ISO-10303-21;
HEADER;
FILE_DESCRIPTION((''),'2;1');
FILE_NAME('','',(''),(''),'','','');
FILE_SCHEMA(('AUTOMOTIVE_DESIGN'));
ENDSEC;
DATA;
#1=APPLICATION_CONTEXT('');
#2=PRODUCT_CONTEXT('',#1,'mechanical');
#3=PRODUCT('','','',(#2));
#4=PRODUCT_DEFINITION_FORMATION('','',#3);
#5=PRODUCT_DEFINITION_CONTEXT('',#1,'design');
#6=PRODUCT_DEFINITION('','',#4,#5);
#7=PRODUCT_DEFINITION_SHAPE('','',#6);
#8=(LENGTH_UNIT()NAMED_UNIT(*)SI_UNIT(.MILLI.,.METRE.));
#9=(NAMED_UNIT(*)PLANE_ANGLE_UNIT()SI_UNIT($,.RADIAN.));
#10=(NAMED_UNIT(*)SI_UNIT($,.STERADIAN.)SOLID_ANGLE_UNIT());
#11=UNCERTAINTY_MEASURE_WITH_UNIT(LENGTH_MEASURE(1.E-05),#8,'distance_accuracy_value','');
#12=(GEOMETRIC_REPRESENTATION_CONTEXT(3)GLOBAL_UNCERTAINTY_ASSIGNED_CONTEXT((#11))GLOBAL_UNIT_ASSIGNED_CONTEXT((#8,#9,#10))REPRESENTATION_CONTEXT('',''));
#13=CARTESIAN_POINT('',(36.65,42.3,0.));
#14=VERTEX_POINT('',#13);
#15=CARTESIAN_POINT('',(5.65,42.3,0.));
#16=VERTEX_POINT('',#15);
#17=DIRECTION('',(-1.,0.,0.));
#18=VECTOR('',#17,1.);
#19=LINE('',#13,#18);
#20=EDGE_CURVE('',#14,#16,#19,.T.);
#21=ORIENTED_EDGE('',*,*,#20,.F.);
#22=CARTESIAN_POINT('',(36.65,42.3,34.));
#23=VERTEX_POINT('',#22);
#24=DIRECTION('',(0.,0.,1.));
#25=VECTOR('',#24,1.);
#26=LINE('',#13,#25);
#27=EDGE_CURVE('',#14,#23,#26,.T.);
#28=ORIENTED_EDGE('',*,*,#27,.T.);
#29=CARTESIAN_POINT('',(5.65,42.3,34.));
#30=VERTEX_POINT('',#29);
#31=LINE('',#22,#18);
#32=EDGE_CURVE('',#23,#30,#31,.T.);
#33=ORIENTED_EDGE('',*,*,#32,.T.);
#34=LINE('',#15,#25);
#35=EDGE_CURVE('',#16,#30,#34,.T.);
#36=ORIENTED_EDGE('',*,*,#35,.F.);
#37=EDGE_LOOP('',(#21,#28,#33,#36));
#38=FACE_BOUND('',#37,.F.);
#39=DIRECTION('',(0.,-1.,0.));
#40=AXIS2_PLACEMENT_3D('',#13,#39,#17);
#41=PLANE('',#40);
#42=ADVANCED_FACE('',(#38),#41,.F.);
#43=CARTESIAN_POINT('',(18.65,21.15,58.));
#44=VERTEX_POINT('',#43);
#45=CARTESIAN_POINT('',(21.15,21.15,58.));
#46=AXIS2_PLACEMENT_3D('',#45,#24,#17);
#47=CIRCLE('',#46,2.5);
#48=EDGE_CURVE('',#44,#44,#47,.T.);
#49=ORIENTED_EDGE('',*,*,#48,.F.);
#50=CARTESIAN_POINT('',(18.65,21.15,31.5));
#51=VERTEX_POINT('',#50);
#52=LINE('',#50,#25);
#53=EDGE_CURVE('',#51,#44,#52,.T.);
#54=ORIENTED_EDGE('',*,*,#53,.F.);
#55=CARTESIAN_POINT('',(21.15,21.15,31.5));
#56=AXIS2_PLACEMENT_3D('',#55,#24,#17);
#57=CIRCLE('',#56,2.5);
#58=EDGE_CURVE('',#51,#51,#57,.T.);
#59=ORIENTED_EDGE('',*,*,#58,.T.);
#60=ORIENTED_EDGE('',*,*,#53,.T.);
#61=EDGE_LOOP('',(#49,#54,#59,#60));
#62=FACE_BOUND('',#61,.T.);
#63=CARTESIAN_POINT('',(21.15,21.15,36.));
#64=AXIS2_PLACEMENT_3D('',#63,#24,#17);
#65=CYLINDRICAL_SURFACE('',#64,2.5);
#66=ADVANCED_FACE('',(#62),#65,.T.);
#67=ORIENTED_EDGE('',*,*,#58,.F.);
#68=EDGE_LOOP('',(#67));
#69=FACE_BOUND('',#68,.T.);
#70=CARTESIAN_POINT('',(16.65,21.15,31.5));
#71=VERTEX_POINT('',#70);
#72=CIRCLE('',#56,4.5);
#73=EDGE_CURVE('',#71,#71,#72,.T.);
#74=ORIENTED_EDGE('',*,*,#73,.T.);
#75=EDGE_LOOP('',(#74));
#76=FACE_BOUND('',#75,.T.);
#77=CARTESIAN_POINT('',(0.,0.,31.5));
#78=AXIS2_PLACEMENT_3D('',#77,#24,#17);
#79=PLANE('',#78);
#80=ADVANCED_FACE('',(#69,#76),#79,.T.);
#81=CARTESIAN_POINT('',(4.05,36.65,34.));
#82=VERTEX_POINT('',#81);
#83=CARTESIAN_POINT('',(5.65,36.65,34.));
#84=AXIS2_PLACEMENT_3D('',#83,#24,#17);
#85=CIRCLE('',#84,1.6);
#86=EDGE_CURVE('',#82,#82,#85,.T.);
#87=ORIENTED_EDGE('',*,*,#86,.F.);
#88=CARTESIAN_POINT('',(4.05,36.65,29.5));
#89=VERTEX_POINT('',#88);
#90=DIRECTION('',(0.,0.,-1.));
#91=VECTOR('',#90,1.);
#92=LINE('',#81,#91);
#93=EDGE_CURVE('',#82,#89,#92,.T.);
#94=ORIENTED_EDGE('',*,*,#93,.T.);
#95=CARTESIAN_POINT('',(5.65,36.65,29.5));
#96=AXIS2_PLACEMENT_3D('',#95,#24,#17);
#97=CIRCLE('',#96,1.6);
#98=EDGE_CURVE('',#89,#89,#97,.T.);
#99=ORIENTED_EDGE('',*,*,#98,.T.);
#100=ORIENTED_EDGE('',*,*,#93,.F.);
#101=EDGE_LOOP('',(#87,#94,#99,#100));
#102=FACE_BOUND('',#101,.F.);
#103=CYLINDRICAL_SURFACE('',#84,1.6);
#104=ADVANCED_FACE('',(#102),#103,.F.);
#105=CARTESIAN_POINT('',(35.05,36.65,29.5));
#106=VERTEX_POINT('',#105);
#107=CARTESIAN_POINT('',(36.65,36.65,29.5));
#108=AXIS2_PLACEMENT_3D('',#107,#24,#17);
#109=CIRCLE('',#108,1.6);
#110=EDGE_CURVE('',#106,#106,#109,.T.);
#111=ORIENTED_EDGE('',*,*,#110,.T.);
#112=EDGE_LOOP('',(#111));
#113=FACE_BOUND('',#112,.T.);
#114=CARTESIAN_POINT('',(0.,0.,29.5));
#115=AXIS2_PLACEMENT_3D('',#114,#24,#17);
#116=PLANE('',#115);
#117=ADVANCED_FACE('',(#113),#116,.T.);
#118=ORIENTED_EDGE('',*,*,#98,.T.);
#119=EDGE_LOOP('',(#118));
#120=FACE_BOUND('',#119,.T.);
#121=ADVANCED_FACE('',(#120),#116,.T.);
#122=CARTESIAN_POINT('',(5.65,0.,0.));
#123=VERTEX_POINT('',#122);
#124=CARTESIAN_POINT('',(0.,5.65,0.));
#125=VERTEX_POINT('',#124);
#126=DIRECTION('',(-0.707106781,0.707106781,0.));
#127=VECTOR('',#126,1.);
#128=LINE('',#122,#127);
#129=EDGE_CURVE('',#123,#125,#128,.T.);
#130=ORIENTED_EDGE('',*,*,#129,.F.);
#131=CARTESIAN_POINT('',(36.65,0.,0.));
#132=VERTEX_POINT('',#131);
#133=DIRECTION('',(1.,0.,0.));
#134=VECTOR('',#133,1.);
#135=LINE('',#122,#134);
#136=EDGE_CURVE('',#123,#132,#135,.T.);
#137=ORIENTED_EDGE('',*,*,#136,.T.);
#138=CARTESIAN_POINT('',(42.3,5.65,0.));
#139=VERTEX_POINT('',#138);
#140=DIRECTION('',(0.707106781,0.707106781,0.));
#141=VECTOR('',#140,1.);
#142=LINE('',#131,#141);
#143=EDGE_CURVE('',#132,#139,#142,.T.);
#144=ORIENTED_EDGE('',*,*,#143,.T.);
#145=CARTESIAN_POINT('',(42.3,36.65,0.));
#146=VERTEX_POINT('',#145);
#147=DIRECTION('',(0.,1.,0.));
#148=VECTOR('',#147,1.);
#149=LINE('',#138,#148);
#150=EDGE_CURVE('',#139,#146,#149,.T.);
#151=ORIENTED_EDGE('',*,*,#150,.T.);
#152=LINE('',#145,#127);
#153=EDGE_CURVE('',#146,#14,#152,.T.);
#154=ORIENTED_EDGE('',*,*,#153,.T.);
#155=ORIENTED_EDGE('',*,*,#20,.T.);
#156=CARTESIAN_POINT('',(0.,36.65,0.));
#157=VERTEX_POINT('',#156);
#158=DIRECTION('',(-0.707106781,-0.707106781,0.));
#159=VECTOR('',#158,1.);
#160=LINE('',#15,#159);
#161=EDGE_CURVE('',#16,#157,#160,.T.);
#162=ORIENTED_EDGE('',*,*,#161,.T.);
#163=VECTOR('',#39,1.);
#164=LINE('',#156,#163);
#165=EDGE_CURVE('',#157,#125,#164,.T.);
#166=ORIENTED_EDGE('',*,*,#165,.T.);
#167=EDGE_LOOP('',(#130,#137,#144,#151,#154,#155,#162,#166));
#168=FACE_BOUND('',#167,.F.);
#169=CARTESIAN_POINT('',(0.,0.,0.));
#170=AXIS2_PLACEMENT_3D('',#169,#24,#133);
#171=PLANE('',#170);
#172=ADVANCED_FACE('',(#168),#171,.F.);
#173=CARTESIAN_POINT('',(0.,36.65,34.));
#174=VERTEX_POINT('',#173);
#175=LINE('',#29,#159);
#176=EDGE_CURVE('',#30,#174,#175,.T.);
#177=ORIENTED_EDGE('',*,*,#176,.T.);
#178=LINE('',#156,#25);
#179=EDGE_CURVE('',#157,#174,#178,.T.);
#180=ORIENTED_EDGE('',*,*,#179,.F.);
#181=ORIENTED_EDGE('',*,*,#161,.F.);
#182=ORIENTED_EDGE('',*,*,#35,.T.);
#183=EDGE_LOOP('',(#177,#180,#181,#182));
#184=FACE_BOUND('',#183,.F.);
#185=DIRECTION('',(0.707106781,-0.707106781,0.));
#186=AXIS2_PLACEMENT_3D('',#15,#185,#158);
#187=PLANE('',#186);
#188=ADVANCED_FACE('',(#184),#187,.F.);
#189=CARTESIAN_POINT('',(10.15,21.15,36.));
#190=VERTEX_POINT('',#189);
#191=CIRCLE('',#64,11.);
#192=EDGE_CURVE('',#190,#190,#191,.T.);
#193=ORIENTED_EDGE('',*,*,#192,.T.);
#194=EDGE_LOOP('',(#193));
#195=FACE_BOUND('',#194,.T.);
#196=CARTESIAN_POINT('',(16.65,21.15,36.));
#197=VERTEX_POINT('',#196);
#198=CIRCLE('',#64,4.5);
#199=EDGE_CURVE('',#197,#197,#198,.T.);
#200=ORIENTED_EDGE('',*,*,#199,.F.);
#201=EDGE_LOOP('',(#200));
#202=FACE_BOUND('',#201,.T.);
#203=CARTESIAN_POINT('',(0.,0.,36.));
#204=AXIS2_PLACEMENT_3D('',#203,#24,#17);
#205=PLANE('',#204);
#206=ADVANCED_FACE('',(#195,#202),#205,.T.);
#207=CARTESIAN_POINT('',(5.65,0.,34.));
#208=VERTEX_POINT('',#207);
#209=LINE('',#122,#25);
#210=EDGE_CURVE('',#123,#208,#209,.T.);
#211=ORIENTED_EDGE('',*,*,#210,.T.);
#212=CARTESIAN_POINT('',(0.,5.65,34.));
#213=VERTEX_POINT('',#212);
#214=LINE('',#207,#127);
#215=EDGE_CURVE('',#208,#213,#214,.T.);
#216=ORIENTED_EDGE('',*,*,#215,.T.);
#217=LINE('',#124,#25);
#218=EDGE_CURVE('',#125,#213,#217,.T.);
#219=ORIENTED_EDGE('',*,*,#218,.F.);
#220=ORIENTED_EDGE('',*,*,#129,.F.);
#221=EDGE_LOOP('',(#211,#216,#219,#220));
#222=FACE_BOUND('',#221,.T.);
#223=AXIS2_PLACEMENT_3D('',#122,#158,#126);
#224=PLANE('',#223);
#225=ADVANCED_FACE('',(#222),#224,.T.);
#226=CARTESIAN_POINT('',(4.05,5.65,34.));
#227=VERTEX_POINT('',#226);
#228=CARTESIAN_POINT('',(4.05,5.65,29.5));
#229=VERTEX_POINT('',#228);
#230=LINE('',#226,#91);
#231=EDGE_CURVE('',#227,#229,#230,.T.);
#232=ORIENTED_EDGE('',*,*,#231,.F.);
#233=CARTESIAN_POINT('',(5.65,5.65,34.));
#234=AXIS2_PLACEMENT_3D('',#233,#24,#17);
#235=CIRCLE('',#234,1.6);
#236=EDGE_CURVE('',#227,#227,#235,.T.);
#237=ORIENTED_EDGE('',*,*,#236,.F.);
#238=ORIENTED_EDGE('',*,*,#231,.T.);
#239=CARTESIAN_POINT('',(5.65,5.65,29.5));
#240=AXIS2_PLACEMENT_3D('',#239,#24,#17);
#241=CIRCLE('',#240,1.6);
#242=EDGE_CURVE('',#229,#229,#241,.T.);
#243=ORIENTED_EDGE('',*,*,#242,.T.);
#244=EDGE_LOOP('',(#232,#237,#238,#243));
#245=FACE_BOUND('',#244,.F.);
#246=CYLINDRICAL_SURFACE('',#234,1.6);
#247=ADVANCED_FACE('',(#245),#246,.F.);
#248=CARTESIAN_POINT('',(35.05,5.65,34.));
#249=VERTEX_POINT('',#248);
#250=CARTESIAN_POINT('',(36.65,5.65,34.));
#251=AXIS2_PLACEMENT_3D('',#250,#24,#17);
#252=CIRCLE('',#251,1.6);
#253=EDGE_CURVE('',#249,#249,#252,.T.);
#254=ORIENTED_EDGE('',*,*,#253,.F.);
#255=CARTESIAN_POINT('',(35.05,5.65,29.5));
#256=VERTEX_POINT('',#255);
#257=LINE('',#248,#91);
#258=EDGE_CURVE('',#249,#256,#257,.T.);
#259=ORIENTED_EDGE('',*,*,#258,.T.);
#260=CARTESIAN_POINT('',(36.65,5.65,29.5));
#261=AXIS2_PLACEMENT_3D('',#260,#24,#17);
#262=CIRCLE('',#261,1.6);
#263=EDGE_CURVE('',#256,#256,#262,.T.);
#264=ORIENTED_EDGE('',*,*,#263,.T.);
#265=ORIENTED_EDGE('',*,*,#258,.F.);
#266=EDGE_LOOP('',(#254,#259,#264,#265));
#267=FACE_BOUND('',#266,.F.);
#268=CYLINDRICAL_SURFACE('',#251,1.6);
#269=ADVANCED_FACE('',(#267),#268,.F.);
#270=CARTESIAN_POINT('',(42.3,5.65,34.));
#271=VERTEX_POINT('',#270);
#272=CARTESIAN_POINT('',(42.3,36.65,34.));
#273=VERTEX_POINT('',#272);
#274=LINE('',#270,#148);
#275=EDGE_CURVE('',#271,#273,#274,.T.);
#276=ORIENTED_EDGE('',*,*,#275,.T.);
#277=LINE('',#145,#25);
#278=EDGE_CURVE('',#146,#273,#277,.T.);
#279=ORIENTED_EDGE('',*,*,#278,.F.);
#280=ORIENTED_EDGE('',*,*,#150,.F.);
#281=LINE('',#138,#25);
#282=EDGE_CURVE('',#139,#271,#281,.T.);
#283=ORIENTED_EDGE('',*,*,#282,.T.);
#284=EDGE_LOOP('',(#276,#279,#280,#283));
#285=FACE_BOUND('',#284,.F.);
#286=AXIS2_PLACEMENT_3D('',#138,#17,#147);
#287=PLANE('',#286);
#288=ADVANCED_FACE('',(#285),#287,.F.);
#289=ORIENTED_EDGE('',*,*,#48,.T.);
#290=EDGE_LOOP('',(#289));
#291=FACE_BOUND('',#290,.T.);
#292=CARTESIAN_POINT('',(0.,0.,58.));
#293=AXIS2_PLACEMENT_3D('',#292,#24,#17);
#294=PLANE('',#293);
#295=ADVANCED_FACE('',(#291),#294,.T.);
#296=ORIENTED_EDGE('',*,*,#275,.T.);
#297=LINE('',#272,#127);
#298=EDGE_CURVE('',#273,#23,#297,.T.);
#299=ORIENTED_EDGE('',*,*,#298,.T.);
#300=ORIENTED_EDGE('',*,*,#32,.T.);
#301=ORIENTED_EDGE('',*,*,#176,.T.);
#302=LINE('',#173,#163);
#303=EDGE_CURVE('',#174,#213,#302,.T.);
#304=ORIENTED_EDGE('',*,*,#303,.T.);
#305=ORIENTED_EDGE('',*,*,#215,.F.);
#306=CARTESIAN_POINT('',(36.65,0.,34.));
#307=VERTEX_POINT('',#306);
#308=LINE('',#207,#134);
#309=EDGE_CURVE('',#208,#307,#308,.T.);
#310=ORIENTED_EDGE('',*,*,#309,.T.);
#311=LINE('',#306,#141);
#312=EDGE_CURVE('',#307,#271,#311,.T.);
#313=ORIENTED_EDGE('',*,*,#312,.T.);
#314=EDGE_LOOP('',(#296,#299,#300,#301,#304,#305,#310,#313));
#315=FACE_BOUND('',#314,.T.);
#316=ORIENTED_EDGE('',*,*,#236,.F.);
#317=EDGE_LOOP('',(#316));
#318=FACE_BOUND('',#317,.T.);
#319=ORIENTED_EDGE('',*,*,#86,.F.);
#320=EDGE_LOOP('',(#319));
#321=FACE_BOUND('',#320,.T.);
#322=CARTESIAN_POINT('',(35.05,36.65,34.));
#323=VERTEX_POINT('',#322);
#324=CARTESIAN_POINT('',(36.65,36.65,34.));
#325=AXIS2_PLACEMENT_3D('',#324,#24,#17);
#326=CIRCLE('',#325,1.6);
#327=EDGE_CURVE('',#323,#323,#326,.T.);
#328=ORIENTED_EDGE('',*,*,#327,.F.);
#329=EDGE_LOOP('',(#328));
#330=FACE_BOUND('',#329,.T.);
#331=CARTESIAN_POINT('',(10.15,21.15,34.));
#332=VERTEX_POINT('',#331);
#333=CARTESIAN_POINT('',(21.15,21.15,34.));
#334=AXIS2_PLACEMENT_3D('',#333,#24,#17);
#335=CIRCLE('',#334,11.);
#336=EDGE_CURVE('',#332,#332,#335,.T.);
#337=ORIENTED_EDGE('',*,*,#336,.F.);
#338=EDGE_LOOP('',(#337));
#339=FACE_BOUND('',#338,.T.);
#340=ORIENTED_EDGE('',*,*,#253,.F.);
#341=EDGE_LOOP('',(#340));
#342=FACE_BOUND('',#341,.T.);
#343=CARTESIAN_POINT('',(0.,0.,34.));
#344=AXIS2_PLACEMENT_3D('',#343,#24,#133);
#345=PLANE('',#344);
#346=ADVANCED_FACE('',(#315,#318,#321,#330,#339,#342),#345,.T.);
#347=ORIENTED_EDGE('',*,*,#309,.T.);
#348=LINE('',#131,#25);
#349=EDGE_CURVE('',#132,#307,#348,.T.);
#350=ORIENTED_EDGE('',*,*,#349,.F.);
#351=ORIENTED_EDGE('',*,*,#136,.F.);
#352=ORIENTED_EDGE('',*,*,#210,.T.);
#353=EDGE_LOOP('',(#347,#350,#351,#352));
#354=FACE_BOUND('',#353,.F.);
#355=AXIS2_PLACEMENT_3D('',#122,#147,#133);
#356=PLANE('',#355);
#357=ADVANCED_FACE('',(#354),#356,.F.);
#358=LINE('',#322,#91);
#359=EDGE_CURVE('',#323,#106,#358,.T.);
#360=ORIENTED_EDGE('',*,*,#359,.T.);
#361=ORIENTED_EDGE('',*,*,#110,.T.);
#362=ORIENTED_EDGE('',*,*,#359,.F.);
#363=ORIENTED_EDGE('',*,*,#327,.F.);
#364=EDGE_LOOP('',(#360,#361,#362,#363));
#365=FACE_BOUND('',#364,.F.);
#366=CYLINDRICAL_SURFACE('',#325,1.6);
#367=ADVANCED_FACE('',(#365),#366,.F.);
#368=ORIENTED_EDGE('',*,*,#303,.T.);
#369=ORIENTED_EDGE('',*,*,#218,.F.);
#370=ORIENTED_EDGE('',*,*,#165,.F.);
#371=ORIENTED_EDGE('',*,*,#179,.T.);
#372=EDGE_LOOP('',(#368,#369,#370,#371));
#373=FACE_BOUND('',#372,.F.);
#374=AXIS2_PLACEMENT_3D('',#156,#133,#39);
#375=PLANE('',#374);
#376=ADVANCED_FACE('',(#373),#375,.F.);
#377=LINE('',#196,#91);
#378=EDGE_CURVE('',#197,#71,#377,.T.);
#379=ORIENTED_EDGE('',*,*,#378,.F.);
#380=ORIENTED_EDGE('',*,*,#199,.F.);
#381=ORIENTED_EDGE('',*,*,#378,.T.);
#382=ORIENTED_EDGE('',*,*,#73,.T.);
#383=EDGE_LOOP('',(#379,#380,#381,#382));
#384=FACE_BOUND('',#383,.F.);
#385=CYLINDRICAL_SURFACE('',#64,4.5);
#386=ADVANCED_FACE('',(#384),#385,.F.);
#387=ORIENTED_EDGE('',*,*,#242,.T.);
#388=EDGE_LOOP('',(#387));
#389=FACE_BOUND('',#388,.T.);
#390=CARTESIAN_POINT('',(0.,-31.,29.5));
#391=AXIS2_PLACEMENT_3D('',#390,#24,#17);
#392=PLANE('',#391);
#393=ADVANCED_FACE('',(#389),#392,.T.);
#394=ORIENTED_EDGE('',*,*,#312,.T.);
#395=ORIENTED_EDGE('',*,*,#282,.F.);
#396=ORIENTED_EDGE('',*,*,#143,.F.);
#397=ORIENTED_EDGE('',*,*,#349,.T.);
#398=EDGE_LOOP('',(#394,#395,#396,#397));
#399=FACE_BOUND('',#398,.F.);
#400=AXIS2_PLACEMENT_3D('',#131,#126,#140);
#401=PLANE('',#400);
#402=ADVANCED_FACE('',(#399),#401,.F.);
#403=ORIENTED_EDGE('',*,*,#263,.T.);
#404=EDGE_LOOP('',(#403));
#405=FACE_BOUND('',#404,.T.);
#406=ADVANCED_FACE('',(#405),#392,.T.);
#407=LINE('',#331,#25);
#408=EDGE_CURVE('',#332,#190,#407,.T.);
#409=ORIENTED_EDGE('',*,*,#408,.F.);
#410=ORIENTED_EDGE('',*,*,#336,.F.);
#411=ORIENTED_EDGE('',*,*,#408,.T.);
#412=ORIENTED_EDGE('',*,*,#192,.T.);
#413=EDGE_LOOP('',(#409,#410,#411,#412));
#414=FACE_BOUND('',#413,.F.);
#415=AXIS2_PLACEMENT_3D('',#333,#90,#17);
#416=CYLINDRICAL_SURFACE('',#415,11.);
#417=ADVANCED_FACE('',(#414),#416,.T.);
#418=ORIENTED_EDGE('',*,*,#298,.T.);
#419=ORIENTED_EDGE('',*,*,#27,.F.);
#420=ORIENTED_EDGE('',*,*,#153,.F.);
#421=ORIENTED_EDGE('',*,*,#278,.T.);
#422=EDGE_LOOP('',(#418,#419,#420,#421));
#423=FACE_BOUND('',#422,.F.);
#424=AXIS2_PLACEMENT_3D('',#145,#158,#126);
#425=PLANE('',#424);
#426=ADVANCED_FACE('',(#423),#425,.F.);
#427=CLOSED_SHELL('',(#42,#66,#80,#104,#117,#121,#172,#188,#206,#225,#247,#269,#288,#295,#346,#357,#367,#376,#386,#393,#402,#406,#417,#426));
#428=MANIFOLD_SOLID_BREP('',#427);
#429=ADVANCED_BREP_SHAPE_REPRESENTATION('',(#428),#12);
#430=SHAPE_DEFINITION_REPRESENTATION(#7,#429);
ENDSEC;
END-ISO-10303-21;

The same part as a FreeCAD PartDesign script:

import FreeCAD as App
import Part
import Sketcher
from FreeCAD import Vector

doc = App.newDocument("Part")
body = doc.addObject("PartDesign::Body", "Body")

sketch1 = doc.addObject("Sketcher::SketchObject", "Sketch")
body.addObject(sketch1)
sketch1.AttachmentSupport = (doc.XY_Plane, [""])
sketch1.MapMode = "FlatFace"
sketch1.addGeometry([
    Part.LineSegment(Vector(0, 6, 0), Vector(6, 0, 0)),
    Part.LineSegment(Vector(6, 0, 0), Vector(37, 0, 0)),
    Part.LineSegment(Vector(37, 0, 0), Vector(42, 6, 0)),
    Part.LineSegment(Vector(42, 6, 0), Vector(42, 37, 0)),
    Part.LineSegment(Vector(42, 37, 0), Vector(37, 42, 0)),
    Part.LineSegment(Vector(37, 42, 0), Vector(6, 42, 0)),
    Part.LineSegment(Vector(6, 42, 0), Vector(0, 37, 0)),
    Part.LineSegment(Vector(0, 37, 0), Vector(0, 6, 0)),
], False)
sketch1.addConstraint([
    Sketcher.Constraint("Coincident", 0, 2, 1, 1),
    Sketcher.Constraint("Coincident", 1, 2, 2, 1),
    Sketcher.Constraint("Coincident", 2, 2, 3, 1),
    Sketcher.Constraint("Coincident", 3, 2, 4, 1),
    Sketcher.Constraint("Coincident", 4, 2, 5, 1),
    Sketcher.Constraint("Coincident", 5, 2, 6, 1),
    Sketcher.Constraint("Coincident", 6, 2, 7, 1),
    Sketcher.Constraint("Coincident", 7, 2, 0, 1),
    Sketcher.Constraint("Horizontal", 1),
    Sketcher.Constraint("Vertical", 3),
    Sketcher.Constraint("Horizontal", 5),
    Sketcher.Constraint("Vertical", 7),
    Sketcher.Constraint("PointOnObject", 0, 2, -1),
    Sketcher.Constraint("PointOnObject", 6, 2, -2),
    Sketcher.Constraint("Perpendicular", 0, 2),
    Sketcher.Constraint("Perpendicular", 2, 4),
    Sketcher.Constraint("Perpendicular", 4, 6),
    Sketcher.Constraint("Horizontal", 3, 2, 6, 2),
    Sketcher.Constraint("Horizontal", 2, 2, 7, 2),
    Sketcher.Constraint("Vertical", 1, 2, 4, 2),
    Sketcher.Constraint("Vertical", 0, 2, 5, 2),
    Sketcher.Constraint("Equal", 5, 3),
    Sketcher.Constraint("DistanceX", 1, 1, 1, 2, 31.0),
    Sketcher.Constraint("DistanceX", -1, 1, 0, 2, 5.65),
])
pad1 = doc.addObject("PartDesign::Pad", "Pad")
body.addObject(pad1)
pad1.Profile = sketch1
pad1.Length = 34

sketch2 = doc.addObject("Sketcher::SketchObject", "Sketch001")
body.addObject(sketch2)
sketch2.AttachmentSupport = (doc.XY_Plane, [""])
sketch2.MapMode = "FlatFace"
sketch2.AttachmentOffset = App.Placement(Vector(0, 0, 34), App.Rotation())
sketch2.addGeometry([
    Part.Circle(Vector(5.7, 36.6, 0), Vector(0, 0, 1), 1.6),
    Part.Circle(Vector(36.6, 36.6, 0), Vector(0, 0, 1), 1.6),
], False)
sketch2.addConstraint([
    Sketcher.Constraint("Equal", 0, 1),
    Sketcher.Constraint("Horizontal", 0, 3, 1, 3),
    Sketcher.Constraint("Diameter", 0, 3.2),
    Sketcher.Constraint("DistanceX", -1, 1, 0, 3, 5.65),
    Sketcher.Constraint("DistanceX", 0, 3, 1, 3, 31.0),
    Sketcher.Constraint("DistanceY", -1, 1, 0, 3, 36.65),
])
pocket1 = doc.addObject("PartDesign::Pocket", "Pocket")
body.addObject(pocket1)
pocket1.Profile = sketch2
pocket1.Length = 4.5

sketch3 = doc.addObject("Sketcher::SketchObject", "Sketch002")
body.addObject(sketch3)
sketch3.AttachmentSupport = (doc.XY_Plane, [""])
sketch3.MapMode = "FlatFace"
sketch3.AttachmentOffset = App.Placement(Vector(0, 0, 34), App.Rotation())
sketch3.addGeometry(Part.Circle(Vector(21, 21, 0), Vector(0, 0, 1), 11), False)
sketch3.addConstraint([
    Sketcher.Constraint("Diameter", 0, 22.0),
    Sketcher.Constraint("DistanceX", -1, 1, 0, 3, 21.15),
    Sketcher.Constraint("DistanceY", -1, 1, 0, 3, 21.15),
])
pad2 = doc.addObject("PartDesign::Pad", "Pad001")
body.addObject(pad2)
pad2.Profile = sketch3
pad2.Length = 2
doc.recompute()

linearpattern = doc.addObject("PartDesign::LinearPattern", "LinearPattern")
body.addObject(linearpattern)
linearpattern.Originals = [pocket1]
linearpattern.Direction = (doc.Y_Axis, [""])
linearpattern.Mode = "offset"
linearpattern.Offset = 31
linearpattern.Occurrences = 2
linearpattern.Reversed = True
body.Tip = linearpattern

sketch4 = doc.addObject("Sketcher::SketchObject", "Sketch003")
body.addObject(sketch4)
sketch4.AttachmentSupport = (doc.XY_Plane, [""])
sketch4.MapMode = "FlatFace"
sketch4.AttachmentOffset = App.Placement(Vector(0, 0, 36), App.Rotation())
sketch4.addGeometry(Part.Circle(Vector(21.1, 21.1, 0), Vector(0, 0, 1), 2.5), False)
sketch4.addConstraint([
    Sketcher.Constraint("Diameter", 0, 5.0),
    Sketcher.Constraint("DistanceX", -1, 1, 0, 3, 21.15),
    Sketcher.Constraint("DistanceY", -1, 1, 0, 3, 21.15),
])
pad3 = doc.addObject("PartDesign::Pad", "Pad002")
body.addObject(pad3)
pad3.Profile = sketch4
pad3.Length = 22

sketch5 = doc.addObject("Sketcher::SketchObject", "Sketch004")
body.addObject(sketch5)
sketch5.AttachmentSupport = (doc.XY_Plane, [""])
sketch5.MapMode = "FlatFace"
sketch5.AttachmentOffset = App.Placement(Vector(0, 0, 36), App.Rotation())
sketch5.addGeometry([
    Part.Circle(Vector(21.1, 21.1, 0), Vector(0, 0, 1), 4.5),
    Part.Circle(Vector(21.1, 21.1, 0), Vector(0, 0, 1), 2.5),
], False)
sketch5.addConstraint([
    Sketcher.Constraint("Coincident", 1, 3, 0, 3),
    Sketcher.Constraint("Diameter", 0, 9.0),
    Sketcher.Constraint("Diameter", 1, 5.0),
    Sketcher.Constraint("DistanceX", -1, 1, 0, 3, 21.15),
    Sketcher.Constraint("DistanceY", -1, 1, 0, 3, 21.15),
])
pocket2 = doc.addObject("PartDesign::Pocket", "Pocket001")
body.addObject(pocket2)
pocket2.Profile = sketch5
pocket2.Length = 4.5

doc.recompute()
